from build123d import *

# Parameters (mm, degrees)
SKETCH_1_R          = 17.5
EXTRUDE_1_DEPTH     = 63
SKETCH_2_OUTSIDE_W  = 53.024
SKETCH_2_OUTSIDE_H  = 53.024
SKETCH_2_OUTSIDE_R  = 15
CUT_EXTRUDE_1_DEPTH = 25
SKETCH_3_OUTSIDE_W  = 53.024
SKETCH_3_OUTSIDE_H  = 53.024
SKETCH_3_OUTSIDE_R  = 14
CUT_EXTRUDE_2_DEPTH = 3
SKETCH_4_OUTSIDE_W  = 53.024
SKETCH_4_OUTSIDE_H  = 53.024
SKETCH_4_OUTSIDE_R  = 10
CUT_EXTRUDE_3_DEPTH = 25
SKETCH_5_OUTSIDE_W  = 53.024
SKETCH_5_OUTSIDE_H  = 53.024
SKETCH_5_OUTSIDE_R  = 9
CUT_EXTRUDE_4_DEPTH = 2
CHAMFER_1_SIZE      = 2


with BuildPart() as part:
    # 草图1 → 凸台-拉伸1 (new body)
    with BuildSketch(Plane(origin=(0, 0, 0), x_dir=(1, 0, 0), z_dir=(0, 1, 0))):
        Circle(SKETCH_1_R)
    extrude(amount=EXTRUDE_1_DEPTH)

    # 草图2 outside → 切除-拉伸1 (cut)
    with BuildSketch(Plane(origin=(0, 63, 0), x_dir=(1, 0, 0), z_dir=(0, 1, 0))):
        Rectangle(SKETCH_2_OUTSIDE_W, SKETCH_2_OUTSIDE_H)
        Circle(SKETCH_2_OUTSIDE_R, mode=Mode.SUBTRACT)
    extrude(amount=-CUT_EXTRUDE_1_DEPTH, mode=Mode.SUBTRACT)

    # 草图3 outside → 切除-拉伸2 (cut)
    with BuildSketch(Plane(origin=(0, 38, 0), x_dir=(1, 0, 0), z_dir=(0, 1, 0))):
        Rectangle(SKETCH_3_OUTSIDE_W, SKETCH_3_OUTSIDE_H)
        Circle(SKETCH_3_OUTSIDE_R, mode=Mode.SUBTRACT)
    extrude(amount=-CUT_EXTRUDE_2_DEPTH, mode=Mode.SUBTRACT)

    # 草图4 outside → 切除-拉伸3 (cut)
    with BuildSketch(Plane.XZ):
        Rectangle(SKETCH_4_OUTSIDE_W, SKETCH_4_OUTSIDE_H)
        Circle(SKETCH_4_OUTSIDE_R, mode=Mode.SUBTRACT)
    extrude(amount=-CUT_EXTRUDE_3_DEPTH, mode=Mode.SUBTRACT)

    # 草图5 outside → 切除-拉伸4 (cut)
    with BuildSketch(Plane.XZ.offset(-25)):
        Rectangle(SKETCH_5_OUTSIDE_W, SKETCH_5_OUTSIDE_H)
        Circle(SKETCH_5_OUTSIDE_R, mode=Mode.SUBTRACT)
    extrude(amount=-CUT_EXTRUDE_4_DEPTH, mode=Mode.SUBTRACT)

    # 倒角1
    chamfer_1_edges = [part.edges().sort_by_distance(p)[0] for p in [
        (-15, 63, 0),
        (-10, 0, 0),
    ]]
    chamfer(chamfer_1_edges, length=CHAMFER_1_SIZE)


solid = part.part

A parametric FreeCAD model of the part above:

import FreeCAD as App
import Part
import Sketcher
Q = App.Units.Quantity


def edges_at(feature, points):
    """Names of the edges that pass closest to the given points."""
    edges = feature.Shape.Edges
    near = lambda p: min(range(len(edges)), key=lambda i: edges[i].distToShape(Part.Vertex(*p))[0])
    return sorted({f"Edge{near(p) + 1}" for p in points})


def add_polygon(sketch, points):
    """Adds a closed chain of lines whose ends are joined by coincident constraints."""
    first, n = sketch.GeometryCount, len(points)
    for a, b in zip(points, points[1:] + points[:1]):
        sketch.addGeometry(Part.LineSegment(App.Vector(*a, 0), App.Vector(*b, 0)), False)
    for i in range(n):
        sketch.addConstraint(Sketcher.Constraint("Coincident", first + i, 2, first + (i + 1) % n, 1))

doc = App.newDocument("Part")
body = doc.addObject("PartDesign::Body", "Body")

sketch1 = body.newObject("Sketcher::SketchObject", "Sketch")
sketch1.AttachmentSupport = (doc.getObject("XZ_Plane"), [""])
sketch1.MapMode = "FlatFace"
sketch1.addGeometry(Part.Circle(App.Vector(0, 0, 0), App.Vector(0, 0, 1), 18), False)
sketch1.addConstraint(Sketcher.Constraint("Coincident", 0, 3, -1, 1))
sketch1.addConstraint(Sketcher.Constraint("Diameter", 0, Q("35 mm")))
pad1 = body.newObject("PartDesign::Pad", "Pad")
pad1.Profile = sketch1
pad1.Length = 63
pad1.Reversed = True

sketch2 = body.newObject("Sketcher::SketchObject", "Sketch001")
sketch2.AttachmentSupport = (doc.getObject("XZ_Plane"), [""])
sketch2.MapMode = "FlatFace"
sketch2.AttachmentOffset = App.Placement(App.Vector(0, 0, -63), App.Rotation())
add_polygon(sketch2, [(-27, -27), (-27, 27), (27, 27), (27, -27)])
sketch2.addGeometry(Part.Circle(App.Vector(0, 0, 0), App.Vector(0, 0, 1), 15), False)
sketch2.addConstraint(Sketcher.Constraint("Vertical", 0))
sketch2.addConstraint(Sketcher.Constraint("Horizontal", 1))
sketch2.addConstraint(Sketcher.Constraint("Vertical", 2))
sketch2.addConstraint(Sketcher.Constraint("Horizontal", 3))
sketch2.addConstraint(Sketcher.Constraint("Coincident", 4, 3, -1, 1))
sketch2.addConstraint(Sketcher.Constraint("Symmetric", 0, 2, 2, 2, -1, 1))
sketch2.addConstraint(Sketcher.Constraint("Equal", 3, 0))
sketch2.addConstraint(Sketcher.Constraint("Diameter", 4, Q("30 mm")))
sketch2.addConstraint(Sketcher.Constraint("DistanceX", 1, 1, 1, 2, Q("53.024 mm")))
pocket1 = body.newObject("PartDesign::Pocket", "Pocket")
pocket1.Profile = sketch2
pocket1.Length = 25
pocket1.Reversed = True

sketch3 = body.newObject("Sketcher::SketchObject", "Sketch002")
sketch3.AttachmentSupport = (doc.getObject("XZ_Plane"), [""])
sketch3.MapMode = "FlatFace"
sketch3.AttachmentOffset = App.Placement(App.Vector(0, 0, -38), App.Rotation())
add_polygon(sketch3, [(-27, -27), (-27, 27), (27, 27), (27, -27)])
sketch3.addGeometry(Part.Circle(App.Vector(0, 0, 0), App.Vector(0, 0, 1), 14), False)
sketch3.addConstraint(Sketcher.Constraint("Vertical", 0))
sketch3.addConstraint(Sketcher.Constraint("Horizontal", 1))
sketch3.addConstraint(Sketcher.Constraint("Vertical", 2))
sketch3.addConstraint(Sketcher.Constraint("Horizontal", 3))
sketch3.addConstraint(Sketcher.Constraint("Coincident", 4, 3, -1, 1))
sketch3.addConstraint(Sketcher.Constraint("Symmetric", 0, 2, 2, 2, -1, 1))
sketch3.addConstraint(Sketcher.Constraint("Equal", 3, 0))
sketch3.addConstraint(Sketcher.Constraint("Diameter", 4, Q("28 mm")))
sketch3.addConstraint(Sketcher.Constraint("DistanceX", 1, 1, 1, 2, Q("53.024 mm")))
pocket2 = body.newObject("PartDesign::Pocket", "Pocket001")
pocket2.Profile = sketch3
pocket2.Length = 3
pocket2.Reversed = True

sketch4 = body.newObject("Sketcher::SketchObject", "Sketch003")
sketch4.AttachmentSupport = (doc.getObject("XZ_Plane"), [""])
sketch4.MapMode = "FlatFace"
add_polygon(sketch4, [(-27, 27), (-27, -27), (27, -27), (27, 27)])
sketch4.addGeometry(Part.Circle(App.Vector(0, 0, 0), App.Vector(0, 0, 1), 10), False)
sketch4.addConstraint(Sketcher.Constraint("Vertical", 0))
sketch4.addConstraint(Sketcher.Constraint("Horizontal", 1))
sketch4.addConstraint(Sketcher.Constraint("Vertical", 2))
sketch4.addConstraint(Sketcher.Constraint("Horizontal", 3))
sketch4.addConstraint(Sketcher.Constraint("Coincident", 4, 3, -1, 1))
sketch4.addConstraint(Sketcher.Constraint("Symmetric", 0, 2, 2, 2, -1, 1))
sketch4.addConstraint(Sketcher.Constraint("Equal", 3, 0))
sketch4.addConstraint(Sketcher.Constraint("Diameter", 4, Q("20 mm")))
sketch4.addConstraint(Sketcher.Constraint("DistanceX", 1, 1, 1, 2, Q("53.024 mm")))
pocket3 = body.newObject("PartDesign::Pocket", "Pocket002")
pocket3.Profile = sketch4
pocket3.Length = 25

sketch5 = body.newObject("Sketcher::SketchObject", "Sketch004")
sketch5.AttachmentSupport = (doc.getObject("XZ_Plane"), [""])
sketch5.MapMode = "FlatFace"
sketch5.AttachmentOffset = App.Placement(App.Vector(0, 0, -25), App.Rotation())
add_polygon(sketch5, [(-27, 27), (-27, -27), (27, -27), (27, 27)])
sketch5.addGeometry(Part.Circle(App.Vector(0, 0, 0), App.Vector(0, 0, 1), 9), False)
sketch5.addConstraint(Sketcher.Constraint("Vertical", 0))
sketch5.addConstraint(Sketcher.Constraint("Horizontal", 1))
sketch5.addConstraint(Sketcher.Constraint("Vertical", 2))
sketch5.addConstraint(Sketcher.Constraint("Horizontal", 3))
sketch5.addConstraint(Sketcher.Constraint("Coincident", 4, 3, -1, 1))
sketch5.addConstraint(Sketcher.Constraint("Symmetric", 0, 2, 2, 2, -1, 1))
sketch5.addConstraint(Sketcher.Constraint("Equal", 3, 0))
sketch5.addConstraint(Sketcher.Constraint("Diameter", 4, Q("18 mm")))
sketch5.addConstraint(Sketcher.Constraint("DistanceX", 1, 1, 1, 2, Q("53.024 mm")))
pocket4 = body.newObject("PartDesign::Pocket", "Pocket003")
pocket4.Profile = sketch5
pocket4.Length = 2
doc.recompute()

chamfer = body.newObject("PartDesign::Chamfer", "Chamfer")
chamfer.Base = (pocket4, edges_at(pocket4, [(-15, 63, 0), (-10, 0, 0)]))
chamfer.Size = 2

doc.recompute()
